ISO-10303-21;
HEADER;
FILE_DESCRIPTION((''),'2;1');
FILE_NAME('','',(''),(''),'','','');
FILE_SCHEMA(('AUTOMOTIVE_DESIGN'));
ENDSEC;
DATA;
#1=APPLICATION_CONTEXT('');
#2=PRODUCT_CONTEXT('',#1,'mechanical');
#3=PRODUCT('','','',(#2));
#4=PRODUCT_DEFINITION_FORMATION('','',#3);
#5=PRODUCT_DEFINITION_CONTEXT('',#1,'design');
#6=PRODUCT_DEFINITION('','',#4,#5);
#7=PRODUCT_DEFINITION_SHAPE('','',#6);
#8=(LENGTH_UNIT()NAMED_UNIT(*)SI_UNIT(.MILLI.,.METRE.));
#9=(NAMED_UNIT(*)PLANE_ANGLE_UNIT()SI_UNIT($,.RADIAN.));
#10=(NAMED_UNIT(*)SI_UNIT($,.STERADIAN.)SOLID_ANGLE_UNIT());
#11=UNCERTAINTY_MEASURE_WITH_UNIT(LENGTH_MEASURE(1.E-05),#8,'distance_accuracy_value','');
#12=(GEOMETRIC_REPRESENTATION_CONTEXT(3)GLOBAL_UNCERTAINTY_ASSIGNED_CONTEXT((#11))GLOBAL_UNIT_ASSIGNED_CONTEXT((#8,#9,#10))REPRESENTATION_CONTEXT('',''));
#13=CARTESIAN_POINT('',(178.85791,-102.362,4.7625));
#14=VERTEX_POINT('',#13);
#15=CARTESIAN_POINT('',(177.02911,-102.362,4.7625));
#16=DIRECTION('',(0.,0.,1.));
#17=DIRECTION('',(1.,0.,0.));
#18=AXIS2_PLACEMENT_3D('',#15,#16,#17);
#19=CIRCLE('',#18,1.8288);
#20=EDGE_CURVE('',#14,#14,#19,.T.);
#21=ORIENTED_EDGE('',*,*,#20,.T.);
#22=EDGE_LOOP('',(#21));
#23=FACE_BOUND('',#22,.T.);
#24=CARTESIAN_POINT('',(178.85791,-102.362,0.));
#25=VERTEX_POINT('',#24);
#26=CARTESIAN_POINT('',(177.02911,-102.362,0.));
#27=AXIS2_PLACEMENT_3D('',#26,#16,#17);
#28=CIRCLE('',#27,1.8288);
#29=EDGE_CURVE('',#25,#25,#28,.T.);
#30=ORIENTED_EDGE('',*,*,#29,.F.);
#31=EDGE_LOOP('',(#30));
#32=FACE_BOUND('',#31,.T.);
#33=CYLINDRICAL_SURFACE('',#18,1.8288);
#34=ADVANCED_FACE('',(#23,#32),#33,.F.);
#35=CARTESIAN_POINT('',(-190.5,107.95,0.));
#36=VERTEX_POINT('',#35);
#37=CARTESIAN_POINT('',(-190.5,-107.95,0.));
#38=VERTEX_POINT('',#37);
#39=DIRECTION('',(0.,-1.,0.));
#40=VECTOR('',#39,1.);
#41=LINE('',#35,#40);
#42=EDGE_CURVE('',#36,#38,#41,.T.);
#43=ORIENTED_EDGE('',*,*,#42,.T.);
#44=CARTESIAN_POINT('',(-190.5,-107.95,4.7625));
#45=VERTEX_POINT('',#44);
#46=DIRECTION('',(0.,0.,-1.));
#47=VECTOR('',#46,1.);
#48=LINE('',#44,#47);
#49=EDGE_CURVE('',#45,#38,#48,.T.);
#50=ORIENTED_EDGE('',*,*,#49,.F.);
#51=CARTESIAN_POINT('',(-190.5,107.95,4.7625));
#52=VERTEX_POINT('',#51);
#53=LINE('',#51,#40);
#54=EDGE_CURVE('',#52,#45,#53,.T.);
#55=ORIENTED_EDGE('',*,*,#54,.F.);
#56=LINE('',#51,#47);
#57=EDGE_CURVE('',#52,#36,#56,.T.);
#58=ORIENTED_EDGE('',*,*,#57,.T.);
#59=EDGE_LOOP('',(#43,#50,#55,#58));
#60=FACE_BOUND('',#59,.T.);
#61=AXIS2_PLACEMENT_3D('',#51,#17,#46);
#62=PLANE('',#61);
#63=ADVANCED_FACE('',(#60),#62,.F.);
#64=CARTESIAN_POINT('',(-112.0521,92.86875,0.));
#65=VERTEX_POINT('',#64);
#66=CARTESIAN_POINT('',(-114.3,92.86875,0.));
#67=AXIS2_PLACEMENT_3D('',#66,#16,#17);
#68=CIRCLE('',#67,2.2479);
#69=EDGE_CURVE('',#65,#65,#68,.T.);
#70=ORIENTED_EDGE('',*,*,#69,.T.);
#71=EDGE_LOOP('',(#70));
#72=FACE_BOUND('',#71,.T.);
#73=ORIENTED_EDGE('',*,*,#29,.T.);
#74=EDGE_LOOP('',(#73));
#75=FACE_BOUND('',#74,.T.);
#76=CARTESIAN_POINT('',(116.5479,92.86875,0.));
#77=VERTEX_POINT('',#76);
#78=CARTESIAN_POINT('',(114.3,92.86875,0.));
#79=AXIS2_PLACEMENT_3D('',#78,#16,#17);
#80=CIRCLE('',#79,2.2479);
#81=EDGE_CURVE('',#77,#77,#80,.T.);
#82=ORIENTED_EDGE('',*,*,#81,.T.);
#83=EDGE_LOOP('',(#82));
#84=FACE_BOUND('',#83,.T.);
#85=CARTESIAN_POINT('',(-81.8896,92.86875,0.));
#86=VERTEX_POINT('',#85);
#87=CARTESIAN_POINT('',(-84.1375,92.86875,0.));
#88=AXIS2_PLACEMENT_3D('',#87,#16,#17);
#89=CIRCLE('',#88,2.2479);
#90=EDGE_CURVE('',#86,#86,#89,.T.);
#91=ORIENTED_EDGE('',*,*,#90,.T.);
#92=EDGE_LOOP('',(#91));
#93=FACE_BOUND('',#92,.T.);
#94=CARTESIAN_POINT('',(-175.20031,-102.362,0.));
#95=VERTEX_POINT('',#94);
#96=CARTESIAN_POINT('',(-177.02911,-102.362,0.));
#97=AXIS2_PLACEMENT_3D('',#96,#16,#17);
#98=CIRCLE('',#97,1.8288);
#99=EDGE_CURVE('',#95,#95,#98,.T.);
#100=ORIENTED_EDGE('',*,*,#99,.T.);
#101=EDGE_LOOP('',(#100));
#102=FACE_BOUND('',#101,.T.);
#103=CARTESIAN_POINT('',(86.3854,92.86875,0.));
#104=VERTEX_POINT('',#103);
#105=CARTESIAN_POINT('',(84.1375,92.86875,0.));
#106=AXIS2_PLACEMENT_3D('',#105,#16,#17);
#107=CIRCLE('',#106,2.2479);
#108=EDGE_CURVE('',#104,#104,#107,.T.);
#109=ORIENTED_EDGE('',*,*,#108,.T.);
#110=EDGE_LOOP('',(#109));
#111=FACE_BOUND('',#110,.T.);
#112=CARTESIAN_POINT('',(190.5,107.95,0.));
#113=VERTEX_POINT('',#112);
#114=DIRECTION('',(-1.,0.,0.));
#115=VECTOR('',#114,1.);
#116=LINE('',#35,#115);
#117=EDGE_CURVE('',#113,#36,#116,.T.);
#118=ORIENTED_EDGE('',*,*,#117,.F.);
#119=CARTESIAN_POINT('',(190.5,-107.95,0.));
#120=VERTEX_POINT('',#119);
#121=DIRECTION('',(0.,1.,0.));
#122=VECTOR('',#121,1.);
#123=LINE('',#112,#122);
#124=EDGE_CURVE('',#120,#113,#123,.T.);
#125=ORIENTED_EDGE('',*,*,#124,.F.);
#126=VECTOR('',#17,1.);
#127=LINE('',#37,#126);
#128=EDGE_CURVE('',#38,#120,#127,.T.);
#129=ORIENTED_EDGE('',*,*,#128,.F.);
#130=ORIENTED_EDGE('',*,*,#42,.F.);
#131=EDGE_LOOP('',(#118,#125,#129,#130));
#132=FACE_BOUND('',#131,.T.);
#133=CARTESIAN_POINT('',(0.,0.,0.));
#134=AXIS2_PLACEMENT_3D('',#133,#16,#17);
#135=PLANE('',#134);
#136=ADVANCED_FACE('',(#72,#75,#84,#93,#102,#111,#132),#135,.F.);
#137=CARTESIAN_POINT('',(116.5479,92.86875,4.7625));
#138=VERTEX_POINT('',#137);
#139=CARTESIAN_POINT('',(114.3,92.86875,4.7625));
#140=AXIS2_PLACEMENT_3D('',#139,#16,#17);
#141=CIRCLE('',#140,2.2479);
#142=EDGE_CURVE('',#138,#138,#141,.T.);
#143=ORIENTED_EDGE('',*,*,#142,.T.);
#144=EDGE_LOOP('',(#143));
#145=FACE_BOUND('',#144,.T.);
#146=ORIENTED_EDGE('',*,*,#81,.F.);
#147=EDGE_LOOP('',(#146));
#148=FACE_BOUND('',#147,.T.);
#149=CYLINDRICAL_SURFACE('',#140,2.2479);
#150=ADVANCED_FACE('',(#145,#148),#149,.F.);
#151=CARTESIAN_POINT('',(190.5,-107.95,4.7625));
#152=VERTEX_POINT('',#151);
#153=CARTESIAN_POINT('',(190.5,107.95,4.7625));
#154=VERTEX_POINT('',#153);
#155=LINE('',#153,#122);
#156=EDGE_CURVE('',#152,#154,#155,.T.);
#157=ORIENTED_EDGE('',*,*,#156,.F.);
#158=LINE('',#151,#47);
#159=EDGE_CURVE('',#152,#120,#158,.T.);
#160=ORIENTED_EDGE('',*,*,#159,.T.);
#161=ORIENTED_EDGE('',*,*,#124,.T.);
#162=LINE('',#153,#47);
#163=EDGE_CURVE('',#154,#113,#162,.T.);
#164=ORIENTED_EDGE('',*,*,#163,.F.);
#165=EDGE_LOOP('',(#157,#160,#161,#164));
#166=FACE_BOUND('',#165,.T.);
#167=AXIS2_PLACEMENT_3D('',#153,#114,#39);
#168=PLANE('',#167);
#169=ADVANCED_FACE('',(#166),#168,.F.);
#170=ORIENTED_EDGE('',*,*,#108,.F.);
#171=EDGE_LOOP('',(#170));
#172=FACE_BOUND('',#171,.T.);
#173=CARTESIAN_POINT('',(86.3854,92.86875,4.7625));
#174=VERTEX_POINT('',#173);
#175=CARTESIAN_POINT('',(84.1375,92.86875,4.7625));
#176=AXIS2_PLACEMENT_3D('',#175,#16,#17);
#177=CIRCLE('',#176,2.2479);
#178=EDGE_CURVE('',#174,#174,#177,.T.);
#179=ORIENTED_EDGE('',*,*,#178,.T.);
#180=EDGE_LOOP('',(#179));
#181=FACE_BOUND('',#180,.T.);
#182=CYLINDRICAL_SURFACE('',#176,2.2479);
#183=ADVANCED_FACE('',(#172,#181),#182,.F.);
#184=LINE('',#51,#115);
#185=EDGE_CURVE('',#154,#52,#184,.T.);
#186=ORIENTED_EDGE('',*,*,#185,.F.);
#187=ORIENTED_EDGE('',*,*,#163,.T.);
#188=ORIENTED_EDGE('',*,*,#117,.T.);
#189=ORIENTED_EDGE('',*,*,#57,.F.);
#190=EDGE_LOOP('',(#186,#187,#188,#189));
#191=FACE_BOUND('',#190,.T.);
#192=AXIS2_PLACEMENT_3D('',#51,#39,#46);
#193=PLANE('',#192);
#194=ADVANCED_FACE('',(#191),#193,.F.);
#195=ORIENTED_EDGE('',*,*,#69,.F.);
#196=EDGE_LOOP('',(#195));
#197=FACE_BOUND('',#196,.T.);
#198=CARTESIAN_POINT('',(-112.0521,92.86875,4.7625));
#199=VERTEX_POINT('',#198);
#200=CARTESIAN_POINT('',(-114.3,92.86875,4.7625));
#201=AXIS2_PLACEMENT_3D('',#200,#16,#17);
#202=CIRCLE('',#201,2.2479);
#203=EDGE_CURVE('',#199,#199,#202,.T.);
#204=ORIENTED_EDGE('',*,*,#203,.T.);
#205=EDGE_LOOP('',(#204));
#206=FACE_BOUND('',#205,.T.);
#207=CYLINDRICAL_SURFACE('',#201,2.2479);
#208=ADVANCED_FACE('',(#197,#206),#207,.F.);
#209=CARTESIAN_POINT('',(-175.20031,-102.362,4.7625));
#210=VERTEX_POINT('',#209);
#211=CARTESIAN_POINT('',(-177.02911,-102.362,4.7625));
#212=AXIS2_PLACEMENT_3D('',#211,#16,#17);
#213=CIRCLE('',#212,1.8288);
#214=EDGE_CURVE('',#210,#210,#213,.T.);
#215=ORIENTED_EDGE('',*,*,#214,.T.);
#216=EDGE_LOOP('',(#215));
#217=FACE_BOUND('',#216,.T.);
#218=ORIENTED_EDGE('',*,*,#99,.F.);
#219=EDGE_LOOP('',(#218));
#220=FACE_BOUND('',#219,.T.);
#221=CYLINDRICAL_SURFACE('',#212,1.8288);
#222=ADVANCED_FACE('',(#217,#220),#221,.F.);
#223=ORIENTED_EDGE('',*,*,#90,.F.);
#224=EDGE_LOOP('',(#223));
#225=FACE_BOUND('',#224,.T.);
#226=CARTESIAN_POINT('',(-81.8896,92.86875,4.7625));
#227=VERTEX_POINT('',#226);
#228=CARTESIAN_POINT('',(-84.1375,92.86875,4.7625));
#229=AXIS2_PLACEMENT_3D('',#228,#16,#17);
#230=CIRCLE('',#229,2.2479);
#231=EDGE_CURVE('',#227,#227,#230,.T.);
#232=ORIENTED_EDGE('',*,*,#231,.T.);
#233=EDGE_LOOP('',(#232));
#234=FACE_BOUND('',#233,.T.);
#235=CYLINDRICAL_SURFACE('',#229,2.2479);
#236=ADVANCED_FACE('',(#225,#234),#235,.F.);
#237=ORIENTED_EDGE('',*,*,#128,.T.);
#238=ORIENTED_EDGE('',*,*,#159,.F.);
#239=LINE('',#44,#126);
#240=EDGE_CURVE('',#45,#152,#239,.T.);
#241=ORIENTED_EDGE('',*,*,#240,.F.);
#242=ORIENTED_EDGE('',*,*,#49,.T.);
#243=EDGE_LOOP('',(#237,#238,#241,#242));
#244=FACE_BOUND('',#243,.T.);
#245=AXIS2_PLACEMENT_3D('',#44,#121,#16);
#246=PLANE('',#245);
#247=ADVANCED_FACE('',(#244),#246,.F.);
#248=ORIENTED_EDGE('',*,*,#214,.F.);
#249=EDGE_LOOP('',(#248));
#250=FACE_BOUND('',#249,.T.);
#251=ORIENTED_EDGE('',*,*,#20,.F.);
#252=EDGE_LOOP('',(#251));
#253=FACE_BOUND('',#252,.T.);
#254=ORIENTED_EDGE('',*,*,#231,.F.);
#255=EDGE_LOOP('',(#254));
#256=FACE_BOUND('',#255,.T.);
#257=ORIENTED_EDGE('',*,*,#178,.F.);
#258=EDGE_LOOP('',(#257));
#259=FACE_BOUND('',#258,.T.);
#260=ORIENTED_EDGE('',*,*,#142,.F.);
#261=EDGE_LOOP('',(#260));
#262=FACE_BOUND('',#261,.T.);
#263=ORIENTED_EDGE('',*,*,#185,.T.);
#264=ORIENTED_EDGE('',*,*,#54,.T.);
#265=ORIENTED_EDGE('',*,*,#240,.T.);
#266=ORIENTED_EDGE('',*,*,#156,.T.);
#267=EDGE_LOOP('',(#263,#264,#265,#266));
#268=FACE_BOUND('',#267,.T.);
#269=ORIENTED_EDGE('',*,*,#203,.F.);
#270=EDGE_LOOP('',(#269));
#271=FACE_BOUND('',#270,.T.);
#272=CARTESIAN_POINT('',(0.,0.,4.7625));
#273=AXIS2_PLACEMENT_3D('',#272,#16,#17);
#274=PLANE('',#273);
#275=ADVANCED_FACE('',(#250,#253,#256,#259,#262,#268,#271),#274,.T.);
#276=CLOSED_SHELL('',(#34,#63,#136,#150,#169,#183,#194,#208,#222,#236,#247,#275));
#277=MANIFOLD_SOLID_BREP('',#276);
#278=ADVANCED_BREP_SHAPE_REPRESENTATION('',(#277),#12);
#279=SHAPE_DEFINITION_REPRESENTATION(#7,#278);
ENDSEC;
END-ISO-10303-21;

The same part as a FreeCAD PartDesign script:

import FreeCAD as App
import Part
import Sketcher
Q = App.Units.Quantity


def add_polygon(sketch, points):
    """Adds a closed chain of lines whose ends are joined by coincident constraints."""
    first, n = sketch.GeometryCount, len(points)
    for a, b in zip(points, points[1:] + points[:1]):
        sketch.addGeometry(Part.LineSegment(App.Vector(*a, 0), App.Vector(*b, 0)), False)
    for i in range(n):
        sketch.addConstraint(Sketcher.Constraint("Coincident", first + i, 2, first + (i + 1) % n, 1))

doc = App.newDocument("Part")
body = doc.addObject("PartDesign::Body", "Body")

sketch1 = doc.addObject("Sketcher::SketchObject", "Sketch")
body.addObject(sketch1)
sketch1.AttachmentSupport = (doc.XY_Plane, [""])
sketch1.MapMode = "FlatFace"
add_polygon(sketch1, [(-190, 108), (-190, -108), (190, -108), (190, 108)])
sketch1.addConstraint([
    Sketcher.Constraint("Vertical", 0),
    Sketcher.Constraint("Horizontal", 1),
    Sketcher.Constraint("Vertical", 2),
    Sketcher.Constraint("Horizontal", 3),
    Sketcher.Constraint("Symmetric", 0, 2, 2, 2, -1, 1),
    Sketcher.Constraint("DistanceX", 1, 1, 1, 2, Q("15 in")),
    Sketcher.Constraint("DistanceY", 0, 2, 0, 1, Q("8.5 in")),
])
pad1 = doc.addObject("PartDesign::Pad", "Pad")
body.addObject(pad1)
pad1.Profile = sketch1
pad1.Length = Q("0.1875 in")

sketch2 = doc.addObject("Sketcher::SketchObject", "Sketch001")
body.addObject(sketch2)
sketch2.AttachmentSupport = (doc.XY_Plane, [""])
sketch2.MapMode = "FlatFace"
sketch2.AttachmentOffset = App.Placement(App.Vector(0, 0, 0.1875 * 25.4), App.Rotation())
sketch2.addGeometry([
    Part.Circle(App.Vector(-114.3, 92.9, 0), App.Vector(0, 0, 1), 2.2),
    Part.Circle(App.Vector(-84.1, 92.9, 0), App.Vector(0, 0, 1), 2.2),
    Part.Circle(App.Vector(84.1, 92.9, 0), App.Vector(0, 0, 1), 2.2),
    Part.Circle(App.Vector(114.3, 92.9, 0), App.Vector(0, 0, 1), 2.2),
], False)
sketch2.addConstraint([
    Sketcher.Constraint("Equal", 0, 1),
    Sketcher.Constraint("Equal", 1, 2),
    Sketcher.Constraint("Equal", 2, 3),
    Sketcher.Constraint("Symmetric", 1, 3, 2, 3, -2),
    Sketcher.Constraint("Symmetric", 0, 3, 3, 3, -2),
    Sketcher.Constraint("Horizontal", 0, 3, 1, 3),
    Sketcher.Constraint("Diameter", 0, Q("0.177 in")),
    Sketcher.Constraint("DistanceX", 0, 3, 3, 3, Q("9 in")),
    Sketcher.Constraint("DistanceY", -1, 1, 0, 3, Q("3.65625 in")),
    Sketcher.Constraint("DistanceX", 1, 3, -1, 1, Q("3.3125 in")),
])
doc.recompute()
hole = doc.addObject("PartDesign::Hole", "Hole")
body.addObject(hole)
hole.Profile = sketch2
hole.ThreadType = "None"
hole.Diameter = Q("0.177 in")
hole.DepthType = "Dimension"
hole.Depth = Q("2.93 in")
hole.DrillPoint = "Angled"
hole.DrillPointAngle = 118

sketch3 = doc.addObject("Sketcher::SketchObject", "Sketch002")
body.addObject(sketch3)
sketch3.AttachmentSupport = (doc.XY_Plane, [""])
sketch3.MapMode = "FlatFace"
sketch3.AttachmentOffset = App.Placement(App.Vector(0, 0, 0.1875 * 25.4), App.Rotation())
sketch3.addGeometry([
    Part.Circle(App.Vector(-177, -102.4, 0), App.Vector(0, 0, 1), 1.8),
    Part.Circle(App.Vector(177, -102.4, 0), App.Vector(0, 0, 1), 1.8),
], False)
sketch3.addConstraint([
    Sketcher.Constraint("Equal", 0, 1),
    Sketcher.Constraint("Symmetric", 0, 3, 1, 3, -2),
    Sketcher.Constraint("Diameter", 0, Q("0.144 in")),
    Sketcher.Constraint("DistanceY", 0, 3, -1, 1, Q("4.03 in")),
    Sketcher.Constraint("DistanceX", 0, 3, 1, 3, Q("13.9393 in")),
])
doc.recompute()
hole2 = doc.addObject("PartDesign::Hole", "Hole001")
body.addObject(hole2)
hole2.Profile = sketch3
hole2.ThreadType = "None"
hole2.Diameter = Q("0.144 in")
hole2.DepthType = "Dimension"
hole2.Depth = Q("2.93 in")
hole2.DrillPoint = "Angled"
hole2.DrillPointAngle = 118

doc.recompute()
